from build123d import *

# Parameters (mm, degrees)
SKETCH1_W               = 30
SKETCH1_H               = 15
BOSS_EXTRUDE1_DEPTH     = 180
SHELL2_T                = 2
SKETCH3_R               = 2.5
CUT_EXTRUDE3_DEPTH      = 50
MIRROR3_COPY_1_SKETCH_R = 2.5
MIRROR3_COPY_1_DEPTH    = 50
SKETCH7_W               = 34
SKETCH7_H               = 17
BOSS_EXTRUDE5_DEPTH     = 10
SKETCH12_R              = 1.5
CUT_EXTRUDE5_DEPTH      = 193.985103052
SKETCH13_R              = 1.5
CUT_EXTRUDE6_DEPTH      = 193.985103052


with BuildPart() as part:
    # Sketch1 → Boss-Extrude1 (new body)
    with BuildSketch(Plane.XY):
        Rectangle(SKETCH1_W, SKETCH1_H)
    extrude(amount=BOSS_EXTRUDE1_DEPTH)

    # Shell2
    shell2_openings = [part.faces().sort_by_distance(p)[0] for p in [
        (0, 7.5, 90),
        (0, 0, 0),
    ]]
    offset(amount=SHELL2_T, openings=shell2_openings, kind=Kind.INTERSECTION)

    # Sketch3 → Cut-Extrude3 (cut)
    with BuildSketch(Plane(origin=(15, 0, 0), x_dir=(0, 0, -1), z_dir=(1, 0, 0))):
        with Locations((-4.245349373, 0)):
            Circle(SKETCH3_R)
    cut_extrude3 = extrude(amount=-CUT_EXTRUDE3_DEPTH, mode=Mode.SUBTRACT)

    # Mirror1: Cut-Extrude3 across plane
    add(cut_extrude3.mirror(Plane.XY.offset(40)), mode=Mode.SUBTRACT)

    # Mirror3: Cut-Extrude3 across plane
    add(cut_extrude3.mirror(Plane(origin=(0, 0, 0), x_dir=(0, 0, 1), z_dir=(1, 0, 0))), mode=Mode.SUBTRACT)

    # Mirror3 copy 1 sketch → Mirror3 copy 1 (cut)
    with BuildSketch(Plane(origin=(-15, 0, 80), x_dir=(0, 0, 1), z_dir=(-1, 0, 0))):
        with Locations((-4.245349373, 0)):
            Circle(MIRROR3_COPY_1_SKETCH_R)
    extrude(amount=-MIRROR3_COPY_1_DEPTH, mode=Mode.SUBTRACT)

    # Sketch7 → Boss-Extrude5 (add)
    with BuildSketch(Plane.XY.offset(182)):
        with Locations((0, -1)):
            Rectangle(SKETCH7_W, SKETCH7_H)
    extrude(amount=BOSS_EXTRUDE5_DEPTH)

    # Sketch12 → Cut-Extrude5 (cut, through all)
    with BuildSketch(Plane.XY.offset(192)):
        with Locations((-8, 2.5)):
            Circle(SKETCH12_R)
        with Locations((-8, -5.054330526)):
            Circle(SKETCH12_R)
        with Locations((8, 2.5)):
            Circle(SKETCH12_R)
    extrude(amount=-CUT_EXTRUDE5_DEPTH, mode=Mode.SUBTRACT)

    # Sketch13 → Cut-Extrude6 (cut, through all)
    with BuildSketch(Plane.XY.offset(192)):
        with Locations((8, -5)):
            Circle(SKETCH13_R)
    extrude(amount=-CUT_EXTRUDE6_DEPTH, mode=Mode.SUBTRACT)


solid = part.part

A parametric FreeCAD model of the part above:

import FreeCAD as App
import Part
import Sketcher


def faces_at(feature, points):
    """Names of the faces that lie closest to the given points."""
    faces = feature.Shape.Faces
    near = lambda p: min(range(len(faces)), key=lambda i: faces[i].distToShape(Part.Vertex(*p))[0])
    return sorted({f"Face{near(p) + 1}" for p in points})

doc = App.newDocument("Part")
body = doc.addObject("PartDesign::Body", "Body")

sketch1 = doc.addObject("Sketcher::SketchObject", "Sketch")
body.addObject(sketch1)
sketch1.AttachmentSupport = (doc.XY_Plane, [""])
sketch1.MapMode = "FlatFace"
sketch1.addGeometry([
    Part.LineSegment(App.Vector(-15, 8, 0), App.Vector(-15, -8, 0)),
    Part.LineSegment(App.Vector(-15, -8, 0), App.Vector(15, -8, 0)),
    Part.LineSegment(App.Vector(15, -8, 0), App.Vector(15, 8, 0)),
    Part.LineSegment(App.Vector(15, 8, 0), App.Vector(-15, 8, 0)),
], False)
sketch1.addConstraint([
    Sketcher.Constraint("Coincident", 0, 2, 1, 1),
    Sketcher.Constraint("Coincident", 1, 2, 2, 1),
    Sketcher.Constraint("Coincident", 2, 2, 3, 1),
    Sketcher.Constraint("Coincident", 3, 2, 0, 1),
    Sketcher.Constraint("Vertical", 0),
    Sketcher.Constraint("Horizontal", 1),
    Sketcher.Constraint("Vertical", 2),
    Sketcher.Constraint("Horizontal", 3),
    Sketcher.Constraint("Symmetric", 0, 2, 2, 2, -1, 1),
    Sketcher.Constraint("DistanceX", 1, 1, 1, 2, 30.0),
    Sketcher.Constraint("DistanceY", 0, 2, 0, 1, 15.0),
])
pad1 = doc.addObject("PartDesign::Pad", "Pad")
body.addObject(pad1)
pad1.Profile = sketch1
pad1.Length = 180
doc.recompute()

thickness = doc.addObject("PartDesign::Thickness", "Thickness")
body.addObject(thickness)
thickness.Base = (pad1, faces_at(pad1, [(0, 7.5, 90), (0, 0, 0)]))
thickness.Value = 2
thickness.Reversed = False
thickness.Join = "Intersection"

sketch2 = doc.addObject("Sketcher::SketchObject", "Sketch001")
body.addObject(sketch2)
sketch2.AttachmentSupport = (doc.YZ_Plane, [""])
sketch2.MapMode = "FlatFace"
sketch2.AttachmentOffset = App.Placement(App.Vector(0, 0, 15), App.Rotation())
sketch2.addGeometry(Part.Circle(App.Vector(0, 4.2, 0), App.Vector(0, 0, 1), 2.5), False)
sketch2.addConstraint([
    Sketcher.Constraint("PointOnObject", 0, 3, -2),
    Sketcher.Constraint("Diameter", 0, 5.0),
    Sketcher.Constraint("DistanceY", -1, 1, 0, 3, 4.245349),
])
pocket1 = doc.addObject("PartDesign::Pocket", "Pocket")
body.addObject(pocket1)
pocket1.Profile = sketch2
pocket1.Length = 50
doc.recompute()

datumplane = doc.addObject("PartDesign::Plane", "DatumPlane")
body.addObject(datumplane)
datumplane.AttachmentSupport = (doc.XY_Plane, [""])
datumplane.MapMode = "FlatFace"
datumplane.AttachmentOffset = App.Placement(App.Vector(0, 0, 40), App.Rotation())
mirrored = doc.addObject("PartDesign::Mirrored", "Mirrored")
body.addObject(mirrored)
mirrored.Originals = [pocket1]
mirrored.MirrorPlane = (datumplane, [""])
body.Tip = mirrored
doc.recompute()

mirrored2 = doc.addObject("PartDesign::Mirrored", "Mirrored001")
body.addObject(mirrored2)
mirrored2.Originals = [pocket1]
mirrored2.MirrorPlane = (doc.YZ_Plane, [""])
body.Tip = mirrored2

sketch3 = doc.addObject("Sketcher::SketchObject", "Sketch002")
body.addObject(sketch3)
sketch3.AttachmentSupport = (doc.YZ_Plane, [""])
sketch3.MapMode = "FlatFace"
sketch3.AttachmentOffset = App.Placement(App.Vector(0, 0, -15), App.Rotation())
sketch3.addGeometry(Part.Circle(App.Vector(0, 75.8, 0), App.Vector(0, 0, 1), 2.5), False)
sketch3.addConstraint([
    Sketcher.Constraint("PointOnObject", 0, 3, -2),
    Sketcher.Constraint("Diameter", 0, 5.0),
    Sketcher.Constraint("DistanceY", -1, 1, 0, 3, 75.754651),
])
pocket2 = doc.addObject("PartDesign::Pocket", "Pocket001")
body.addObject(pocket2)
pocket2.Profile = sketch3
pocket2.Length = 50
pocket2.Reversed = True

sketch4 = doc.addObject("Sketcher::SketchObject", "Sketch003")
body.addObject(sketch4)
sketch4.AttachmentSupport = (doc.XY_Plane, [""])
sketch4.MapMode = "FlatFace"
sketch4.AttachmentOffset = App.Placement(App.Vector(0, 0, 182), App.Rotation())
sketch4.addGeometry([
    Part.LineSegment(App.Vector(-17, 8, 0), App.Vector(-17, -10, 0)),
    Part.LineSegment(App.Vector(-17, -10, 0), App.Vector(17, -10, 0)),
    Part.LineSegment(App.Vector(17, -10, 0), App.Vector(17, 8, 0)),
    Part.LineSegment(App.Vector(17, 8, 0), App.Vector(-17, 8, 0)),
], False)
sketch4.addConstraint([
    Sketcher.Constraint("Coincident", 0, 2, 1, 1),
    Sketcher.Constraint("Coincident", 1, 2, 2, 1),
    Sketcher.Constraint("Coincident", 2, 2, 3, 1),
    Sketcher.Constraint("Coincident", 3, 2, 0, 1),
    Sketcher.Constraint("Vertical", 0),
    Sketcher.Constraint("Horizontal", 1),
    Sketcher.Constraint("Vertical", 2),
    Sketcher.Constraint("Horizontal", 3),
    Sketcher.Constraint("DistanceX", 1, 1, 1, 2, 34.0),
    Sketcher.Constraint("DistanceY", 0, 2, 0, 1, 17.0),
    Sketcher.Constraint("DistanceX", 0, 2, -1, 1, 17.0),
    Sketcher.Constraint("DistanceY", 0, 2, -1, 1, 9.5),
])
pad2 = doc.addObject("PartDesign::Pad", "Pad001")
body.addObject(pad2)
pad2.Profile = sketch4
pad2.Length = 10

sketch5 = doc.addObject("Sketcher::SketchObject", "Sketch004")
body.addObject(sketch5)
sketch5.AttachmentSupport = (doc.XY_Plane, [""])
sketch5.MapMode = "FlatFace"
sketch5.AttachmentOffset = App.Placement(App.Vector(0, 0, 192), App.Rotation())
sketch5.addGeometry([
    Part.Circle(App.Vector(-8, 2.5, 0), App.Vector(0, 0, 1), 1.5),
    Part.Circle(App.Vector(-8, -5.1, 0), App.Vector(0, 0, 1), 1.5),
    Part.Circle(App.Vector(8, 2.5, 0), App.Vector(0, 0, 1), 1.5),
], False)
sketch5.addConstraint([
    Sketcher.Constraint("Equal", 0, 1),
    Sketcher.Constraint("Equal", 1, 2),
    Sketcher.Constraint("Symmetric", 0, 3, 2, 3, -2),
    Sketcher.Constraint("Vertical", 0, 3, 1, 3),
    Sketcher.Constraint("Diameter", 0, 3.0),
    Sketcher.Constraint("DistanceX", 0, 3, -1, 1, 8.0),
    Sketcher.Constraint("DistanceY", -1, 1, 0, 3, 2.5),
    Sketcher.Constraint("DistanceY", 1, 3, -1, 1, 5.054331),
])
pocket3 = doc.addObject("PartDesign::Pocket", "Pocket002")
body.addObject(pocket3)
pocket3.Profile = sketch5
pocket3.Type = "ThroughAll"

sketch6 = doc.addObject("Sketcher::SketchObject", "Sketch005")
body.addObject(sketch6)
sketch6.AttachmentSupport = (doc.XY_Plane, [""])
sketch6.MapMode = "FlatFace"
sketch6.AttachmentOffset = App.Placement(App.Vector(0, 0, 192), App.Rotation())
sketch6.addGeometry(Part.Circle(App.Vector(8, -5, 0), App.Vector(0, 0, 1), 1.5), False)
sketch6.addConstraint([
    Sketcher.Constraint("Diameter", 0, 3.0),
    Sketcher.Constraint("DistanceX", -1, 1, 0, 3, 8.0),
    Sketcher.Constraint("DistanceY", 0, 3, -1, 1, 5.0),
])
pocket4 = doc.addObject("PartDesign::Pocket", "Pocket003")
body.addObject(pocket4)
pocket4.Profile = sketch6
pocket4.Type = "ThroughAll"

doc.recompute()
